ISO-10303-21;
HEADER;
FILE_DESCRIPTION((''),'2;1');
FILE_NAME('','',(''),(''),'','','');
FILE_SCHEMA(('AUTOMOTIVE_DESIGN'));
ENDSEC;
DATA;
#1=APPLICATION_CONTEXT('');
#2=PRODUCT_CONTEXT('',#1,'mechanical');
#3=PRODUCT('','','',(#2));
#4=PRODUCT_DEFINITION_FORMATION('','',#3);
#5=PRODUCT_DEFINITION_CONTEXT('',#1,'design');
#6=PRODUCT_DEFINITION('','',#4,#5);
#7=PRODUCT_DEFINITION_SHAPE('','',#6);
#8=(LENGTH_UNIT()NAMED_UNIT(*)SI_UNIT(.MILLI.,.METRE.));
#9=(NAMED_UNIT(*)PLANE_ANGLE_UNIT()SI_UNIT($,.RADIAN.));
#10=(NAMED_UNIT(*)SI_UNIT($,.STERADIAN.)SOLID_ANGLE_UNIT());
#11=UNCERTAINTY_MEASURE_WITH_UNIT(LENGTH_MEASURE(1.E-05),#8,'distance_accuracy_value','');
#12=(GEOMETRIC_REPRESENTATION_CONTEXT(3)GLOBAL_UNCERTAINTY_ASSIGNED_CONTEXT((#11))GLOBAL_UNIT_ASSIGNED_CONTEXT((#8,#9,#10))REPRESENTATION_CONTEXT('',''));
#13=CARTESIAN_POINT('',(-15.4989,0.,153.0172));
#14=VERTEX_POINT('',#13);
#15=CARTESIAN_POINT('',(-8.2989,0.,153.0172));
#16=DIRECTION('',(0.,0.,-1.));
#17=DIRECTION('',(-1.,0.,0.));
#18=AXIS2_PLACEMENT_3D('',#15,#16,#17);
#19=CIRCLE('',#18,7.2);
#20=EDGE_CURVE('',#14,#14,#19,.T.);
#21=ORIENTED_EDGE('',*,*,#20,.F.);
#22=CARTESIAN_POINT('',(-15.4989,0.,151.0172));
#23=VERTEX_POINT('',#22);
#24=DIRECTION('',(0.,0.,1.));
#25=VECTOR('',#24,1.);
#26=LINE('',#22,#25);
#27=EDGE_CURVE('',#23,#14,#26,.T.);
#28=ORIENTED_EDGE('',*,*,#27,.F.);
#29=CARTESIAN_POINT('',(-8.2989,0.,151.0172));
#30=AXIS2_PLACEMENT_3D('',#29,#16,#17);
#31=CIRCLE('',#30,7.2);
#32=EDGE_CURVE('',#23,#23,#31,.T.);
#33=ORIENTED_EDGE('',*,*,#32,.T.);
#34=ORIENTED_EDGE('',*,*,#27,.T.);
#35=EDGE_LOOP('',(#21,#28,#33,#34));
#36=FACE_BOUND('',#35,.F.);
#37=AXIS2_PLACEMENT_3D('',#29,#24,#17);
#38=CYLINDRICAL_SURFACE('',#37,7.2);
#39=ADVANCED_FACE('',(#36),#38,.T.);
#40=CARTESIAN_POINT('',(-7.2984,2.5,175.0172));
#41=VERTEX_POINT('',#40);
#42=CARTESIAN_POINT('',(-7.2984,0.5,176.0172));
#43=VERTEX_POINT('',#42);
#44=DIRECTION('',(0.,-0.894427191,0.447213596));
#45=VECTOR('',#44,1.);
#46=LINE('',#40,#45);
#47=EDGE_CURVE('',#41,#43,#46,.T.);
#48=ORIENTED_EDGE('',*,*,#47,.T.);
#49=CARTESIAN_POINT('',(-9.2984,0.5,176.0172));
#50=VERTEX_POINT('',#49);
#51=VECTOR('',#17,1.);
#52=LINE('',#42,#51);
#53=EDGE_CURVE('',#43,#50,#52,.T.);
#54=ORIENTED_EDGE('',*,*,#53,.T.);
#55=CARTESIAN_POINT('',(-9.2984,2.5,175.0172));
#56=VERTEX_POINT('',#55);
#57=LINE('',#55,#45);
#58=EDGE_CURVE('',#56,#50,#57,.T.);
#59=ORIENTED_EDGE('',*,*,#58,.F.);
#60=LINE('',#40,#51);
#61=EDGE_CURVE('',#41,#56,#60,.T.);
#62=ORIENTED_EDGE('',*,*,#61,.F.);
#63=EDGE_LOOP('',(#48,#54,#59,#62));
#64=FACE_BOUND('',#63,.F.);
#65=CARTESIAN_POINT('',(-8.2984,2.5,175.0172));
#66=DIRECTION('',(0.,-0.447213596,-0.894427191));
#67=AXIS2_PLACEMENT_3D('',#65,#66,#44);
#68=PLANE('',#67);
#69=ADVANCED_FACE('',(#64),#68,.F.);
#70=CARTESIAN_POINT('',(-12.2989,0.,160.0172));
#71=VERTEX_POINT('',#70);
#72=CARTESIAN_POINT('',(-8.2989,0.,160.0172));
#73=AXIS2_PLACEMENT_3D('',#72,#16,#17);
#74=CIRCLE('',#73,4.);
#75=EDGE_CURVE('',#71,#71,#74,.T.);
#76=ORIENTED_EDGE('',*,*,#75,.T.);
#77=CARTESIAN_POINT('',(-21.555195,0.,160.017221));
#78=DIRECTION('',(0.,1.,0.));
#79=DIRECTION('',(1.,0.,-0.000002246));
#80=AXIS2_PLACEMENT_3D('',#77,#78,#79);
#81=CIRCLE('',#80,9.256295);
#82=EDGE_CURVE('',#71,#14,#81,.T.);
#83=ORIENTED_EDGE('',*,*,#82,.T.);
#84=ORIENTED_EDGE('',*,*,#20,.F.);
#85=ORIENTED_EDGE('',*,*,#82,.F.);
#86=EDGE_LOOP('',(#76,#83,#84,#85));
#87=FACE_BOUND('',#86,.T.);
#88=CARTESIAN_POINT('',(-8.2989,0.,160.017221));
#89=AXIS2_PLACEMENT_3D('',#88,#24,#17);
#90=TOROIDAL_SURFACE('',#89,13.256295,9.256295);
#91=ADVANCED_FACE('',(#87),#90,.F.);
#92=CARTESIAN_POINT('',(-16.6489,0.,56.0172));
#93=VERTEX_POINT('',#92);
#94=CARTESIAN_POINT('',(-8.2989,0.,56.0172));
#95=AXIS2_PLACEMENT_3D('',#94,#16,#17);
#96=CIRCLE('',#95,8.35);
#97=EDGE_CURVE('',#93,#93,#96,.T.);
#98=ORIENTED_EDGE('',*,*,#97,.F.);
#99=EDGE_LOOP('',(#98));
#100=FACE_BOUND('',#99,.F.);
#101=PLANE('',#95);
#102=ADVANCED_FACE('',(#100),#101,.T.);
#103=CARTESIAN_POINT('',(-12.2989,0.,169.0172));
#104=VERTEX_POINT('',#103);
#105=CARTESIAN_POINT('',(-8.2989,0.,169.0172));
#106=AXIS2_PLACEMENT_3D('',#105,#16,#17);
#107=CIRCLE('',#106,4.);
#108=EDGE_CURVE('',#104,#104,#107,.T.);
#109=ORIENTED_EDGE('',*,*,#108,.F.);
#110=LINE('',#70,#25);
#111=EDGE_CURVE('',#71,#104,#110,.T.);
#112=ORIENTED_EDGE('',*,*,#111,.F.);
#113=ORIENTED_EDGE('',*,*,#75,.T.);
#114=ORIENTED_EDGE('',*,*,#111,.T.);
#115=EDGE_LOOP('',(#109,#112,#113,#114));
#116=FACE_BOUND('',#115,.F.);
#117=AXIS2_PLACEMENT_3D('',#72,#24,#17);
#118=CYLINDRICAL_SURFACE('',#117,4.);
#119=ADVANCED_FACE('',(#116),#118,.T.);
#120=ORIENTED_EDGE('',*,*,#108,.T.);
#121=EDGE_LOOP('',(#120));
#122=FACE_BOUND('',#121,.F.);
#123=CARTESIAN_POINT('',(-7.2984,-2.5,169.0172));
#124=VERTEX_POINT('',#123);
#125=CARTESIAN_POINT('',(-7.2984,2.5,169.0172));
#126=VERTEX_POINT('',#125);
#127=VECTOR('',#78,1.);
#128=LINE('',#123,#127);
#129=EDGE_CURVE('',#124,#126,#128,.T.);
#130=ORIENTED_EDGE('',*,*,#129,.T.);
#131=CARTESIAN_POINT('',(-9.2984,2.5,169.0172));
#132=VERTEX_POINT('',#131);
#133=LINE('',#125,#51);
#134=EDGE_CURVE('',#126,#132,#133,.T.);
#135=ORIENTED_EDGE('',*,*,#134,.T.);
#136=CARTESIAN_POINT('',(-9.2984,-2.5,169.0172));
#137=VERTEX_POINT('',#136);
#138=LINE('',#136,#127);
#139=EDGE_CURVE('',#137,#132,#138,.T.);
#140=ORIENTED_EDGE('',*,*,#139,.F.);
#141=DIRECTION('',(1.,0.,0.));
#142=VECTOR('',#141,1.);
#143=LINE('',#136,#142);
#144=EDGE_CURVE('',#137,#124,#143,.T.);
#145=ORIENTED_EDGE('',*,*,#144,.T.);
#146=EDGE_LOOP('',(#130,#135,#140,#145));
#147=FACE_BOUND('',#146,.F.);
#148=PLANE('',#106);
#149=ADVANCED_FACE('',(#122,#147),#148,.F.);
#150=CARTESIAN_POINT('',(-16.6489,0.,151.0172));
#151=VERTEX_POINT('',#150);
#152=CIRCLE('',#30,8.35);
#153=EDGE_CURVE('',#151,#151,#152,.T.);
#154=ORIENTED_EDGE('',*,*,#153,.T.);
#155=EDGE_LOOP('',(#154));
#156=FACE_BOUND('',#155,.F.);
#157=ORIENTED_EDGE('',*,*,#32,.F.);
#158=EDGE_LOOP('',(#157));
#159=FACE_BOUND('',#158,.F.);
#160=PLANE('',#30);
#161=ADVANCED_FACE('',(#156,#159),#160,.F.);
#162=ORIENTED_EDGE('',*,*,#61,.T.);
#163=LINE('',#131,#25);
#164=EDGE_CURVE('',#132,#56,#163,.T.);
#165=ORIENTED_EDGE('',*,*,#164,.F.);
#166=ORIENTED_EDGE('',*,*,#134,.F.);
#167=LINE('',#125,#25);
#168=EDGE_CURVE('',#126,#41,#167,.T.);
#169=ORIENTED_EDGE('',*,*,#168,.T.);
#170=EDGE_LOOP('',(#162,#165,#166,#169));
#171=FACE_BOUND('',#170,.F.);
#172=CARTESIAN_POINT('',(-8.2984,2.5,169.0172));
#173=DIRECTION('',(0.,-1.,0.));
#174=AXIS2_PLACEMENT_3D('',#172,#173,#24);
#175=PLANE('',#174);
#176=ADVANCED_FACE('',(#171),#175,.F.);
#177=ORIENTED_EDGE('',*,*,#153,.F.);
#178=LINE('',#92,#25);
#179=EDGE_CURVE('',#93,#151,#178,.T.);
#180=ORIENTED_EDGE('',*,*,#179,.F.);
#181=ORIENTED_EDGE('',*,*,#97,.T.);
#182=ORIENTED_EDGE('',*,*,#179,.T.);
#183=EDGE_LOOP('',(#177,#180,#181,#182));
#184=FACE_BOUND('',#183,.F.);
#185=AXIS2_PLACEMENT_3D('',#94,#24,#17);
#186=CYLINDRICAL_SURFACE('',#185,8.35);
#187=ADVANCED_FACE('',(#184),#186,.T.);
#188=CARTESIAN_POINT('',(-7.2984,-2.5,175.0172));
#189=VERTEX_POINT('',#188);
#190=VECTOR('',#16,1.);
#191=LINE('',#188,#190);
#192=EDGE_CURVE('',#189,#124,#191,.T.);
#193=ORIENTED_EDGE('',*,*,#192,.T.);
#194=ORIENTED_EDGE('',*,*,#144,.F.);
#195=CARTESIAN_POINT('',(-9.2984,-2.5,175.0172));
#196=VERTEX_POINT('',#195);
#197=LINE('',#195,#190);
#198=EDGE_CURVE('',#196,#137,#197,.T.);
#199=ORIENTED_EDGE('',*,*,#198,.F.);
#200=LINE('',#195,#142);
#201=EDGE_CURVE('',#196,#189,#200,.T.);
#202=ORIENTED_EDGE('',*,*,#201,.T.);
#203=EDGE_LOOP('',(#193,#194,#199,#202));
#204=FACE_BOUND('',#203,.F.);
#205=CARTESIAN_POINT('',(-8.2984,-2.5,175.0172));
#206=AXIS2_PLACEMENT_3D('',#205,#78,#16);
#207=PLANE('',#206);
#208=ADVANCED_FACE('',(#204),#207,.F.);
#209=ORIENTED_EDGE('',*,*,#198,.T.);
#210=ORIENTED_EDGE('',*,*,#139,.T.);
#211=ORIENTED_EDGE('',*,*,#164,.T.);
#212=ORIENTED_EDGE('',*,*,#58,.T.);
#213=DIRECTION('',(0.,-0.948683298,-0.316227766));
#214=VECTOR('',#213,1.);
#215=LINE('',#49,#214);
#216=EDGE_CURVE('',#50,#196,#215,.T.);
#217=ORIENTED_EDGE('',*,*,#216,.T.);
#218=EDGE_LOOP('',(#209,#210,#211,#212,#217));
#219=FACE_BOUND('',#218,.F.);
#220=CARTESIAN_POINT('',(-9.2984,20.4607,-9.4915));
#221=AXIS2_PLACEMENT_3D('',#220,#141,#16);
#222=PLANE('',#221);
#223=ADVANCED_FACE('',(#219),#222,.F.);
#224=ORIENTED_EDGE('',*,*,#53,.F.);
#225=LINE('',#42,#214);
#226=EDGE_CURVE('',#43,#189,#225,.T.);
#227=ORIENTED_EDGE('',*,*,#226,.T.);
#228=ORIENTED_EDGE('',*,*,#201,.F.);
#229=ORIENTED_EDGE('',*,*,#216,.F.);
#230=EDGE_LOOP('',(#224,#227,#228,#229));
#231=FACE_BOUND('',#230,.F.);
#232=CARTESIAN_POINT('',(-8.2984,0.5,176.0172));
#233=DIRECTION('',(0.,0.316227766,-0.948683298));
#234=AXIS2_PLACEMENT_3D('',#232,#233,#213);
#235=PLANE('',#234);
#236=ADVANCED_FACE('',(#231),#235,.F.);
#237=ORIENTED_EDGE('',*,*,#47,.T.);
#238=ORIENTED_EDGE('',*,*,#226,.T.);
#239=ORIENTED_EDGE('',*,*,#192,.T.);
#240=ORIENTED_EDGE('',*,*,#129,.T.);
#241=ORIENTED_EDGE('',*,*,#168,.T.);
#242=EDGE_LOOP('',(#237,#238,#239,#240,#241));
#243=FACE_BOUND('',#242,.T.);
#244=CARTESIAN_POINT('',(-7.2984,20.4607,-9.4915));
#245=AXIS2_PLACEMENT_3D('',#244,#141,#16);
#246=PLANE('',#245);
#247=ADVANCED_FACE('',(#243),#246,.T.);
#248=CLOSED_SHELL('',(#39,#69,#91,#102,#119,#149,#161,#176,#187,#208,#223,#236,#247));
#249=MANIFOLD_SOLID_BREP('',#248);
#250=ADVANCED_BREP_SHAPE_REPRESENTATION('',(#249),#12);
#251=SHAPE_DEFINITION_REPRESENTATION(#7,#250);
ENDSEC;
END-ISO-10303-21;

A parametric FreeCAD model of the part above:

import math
import FreeCAD as App
import Part
import Sketcher

V = App.Vector


def add_polygon(sketch, points):
    """Adds a closed chain of lines whose ends are joined by coincident constraints."""
    first, n = sketch.GeometryCount, len(points)
    for a, b in zip(points, points[1:] + points[:1]):
        sketch.addGeometry(Part.LineSegment(App.Vector(*a, 0), App.Vector(*b, 0)), False)
    for i in range(n):
        sketch.addConstraint(Sketcher.Constraint("Coincident", first + i, 2, first + (i + 1) % n, 1))

doc = App.newDocument("Part")
body = doc.addObject("PartDesign::Body", "Body")

sketch1 = doc.addObject("Sketcher::SketchObject", "Sketch")
body.addObject(sketch1)
sketch1.AttachmentSupport = (doc.XZ_Plane, [""])
sketch1.MapMode = "FlatFace"
sketch1.addGeometry([
    Part.LineSegment(V(-8.3, 169, 0), V(-8.3, 56, 0)),
    Part.LineSegment(V(-8.3, 56, 0), V(-16.6, 56, 0)),
    Part.LineSegment(V(-16.6, 56, 0), V(-16.6, 151, 0)),
    Part.LineSegment(V(-16.6, 151, 0), V(-15.5, 151, 0)),
    Part.LineSegment(V(-15.5, 151, 0), V(-15.5, 153, 0)),
    Part.ArcOfCircle(Part.Circle(V(-21.6, 160, 0), V(0, 0, 1), 9.3), math.radians(-49), math.radians(0)),
    Part.LineSegment(V(-12.3, 160, 0), V(-12.3, 169, 0)),
    Part.LineSegment(V(-12.3, 169, 0), V(-8.3, 169, 0)),
], False)
sketch1.addGeometry(Part.LineSegment(V(-8.3, 169, 0), V(-8.3, 56, 0)), True)
sketch1.addConstraint([
    Sketcher.Constraint("Coincident", 0, 2, 1, 1),
    Sketcher.Constraint("Coincident", 1, 2, 2, 1),
    Sketcher.Constraint("Coincident", 2, 2, 3, 1),
    Sketcher.Constraint("Coincident", 3, 2, 4, 1),
    Sketcher.Constraint("Coincident", 4, 2, 5, 1),
    Sketcher.Constraint("Tangent", 5, 2, 6, 1),
    Sketcher.Constraint("Coincident", 6, 2, 7, 1),
    Sketcher.Constraint("Coincident", 7, 2, 0, 1),
    Sketcher.Constraint("Vertical", 0),
    Sketcher.Constraint("Horizontal", 1),
    Sketcher.Constraint("Vertical", 2),
    Sketcher.Constraint("Horizontal", 3),
    Sketcher.Constraint("Vertical", 4),
    Sketcher.Constraint("Vertical", 6),
    Sketcher.Constraint("Horizontal", 7),
    Sketcher.Constraint("Vertical", 8),
    Sketcher.Constraint("Coincident", 8, 1, 7, 2),
    Sketcher.Constraint("Horizontal", 1, 2, 8, 2),
    Sketcher.Constraint("DistanceY", 2, 1, 2, 2, 95.0),
    Sketcher.Constraint("DistanceY", 4, 1, 4, 2, 2.0),
    Sketcher.Constraint("DistanceY", 4, 2, 5, 3, 7.0),
    Sketcher.Constraint("DistanceY", 3, 2, 6, 2, 18.0),
    Sketcher.Constraint("DistanceX", 7, 1, 7, 2, 4.0),
    Sketcher.Constraint("DistanceX", 1, 2, 1, 1, 8.35),
    Sketcher.Constraint("DistanceX", 3, 1, 3, 2, 1.15),
    Sketcher.Constraint("DistanceX", 5, 3, -1, 1, 21.555),
    Sketcher.Constraint("DistanceY", -1, 1, 5, 3, 160.0172),
])
revolution = doc.addObject("PartDesign::Revolution", "Revolution")
body.addObject(revolution)
revolution.Profile = sketch1
revolution.ReferenceAxis = (sketch1, ["Axis0"])
revolution.Angle = 360

sketch2 = doc.addObject("Sketcher::SketchObject", "Sketch001")
body.addObject(sketch2)
sketch2.AttachmentSupport = (doc.YZ_Plane, [""])
sketch2.MapMode = "FlatFace"
sketch2.AttachmentOffset = App.Placement(V(0, 0, -8.2984), App.Rotation())
add_polygon(sketch2, [(0.5, 176), (-2.5, 175), (-2.5, 169), (2.5, 169), (2.5, 175)])
sketch2.addConstraint([
    Sketcher.Constraint("Vertical", 1),
    Sketcher.Constraint("Horizontal", 2),
    Sketcher.Constraint("Vertical", 3),
    Sketcher.Constraint("Symmetric", 0, 2, 3, 2, -2),
    Sketcher.Constraint("DistanceX", 2, 1, 2, 2, 5.0),
    Sketcher.Constraint("DistanceY", 1, 2, 1, 1, 6.0),
    Sketcher.Constraint("DistanceX", 4, 2, 3, 2, 2.0),
    Sketcher.Constraint("DistanceY", 3, 2, 4, 2, 1.0),
    Sketcher.Constraint("DistanceY", -1, 1, 0, 2, 175.0172),
])
pad1 = doc.addObject("PartDesign::Pad", "Pad")
body.addObject(pad1)
pad1.Profile = sketch2
pad1.Length = 2
pad1.Midplane = True

doc.recompute()
